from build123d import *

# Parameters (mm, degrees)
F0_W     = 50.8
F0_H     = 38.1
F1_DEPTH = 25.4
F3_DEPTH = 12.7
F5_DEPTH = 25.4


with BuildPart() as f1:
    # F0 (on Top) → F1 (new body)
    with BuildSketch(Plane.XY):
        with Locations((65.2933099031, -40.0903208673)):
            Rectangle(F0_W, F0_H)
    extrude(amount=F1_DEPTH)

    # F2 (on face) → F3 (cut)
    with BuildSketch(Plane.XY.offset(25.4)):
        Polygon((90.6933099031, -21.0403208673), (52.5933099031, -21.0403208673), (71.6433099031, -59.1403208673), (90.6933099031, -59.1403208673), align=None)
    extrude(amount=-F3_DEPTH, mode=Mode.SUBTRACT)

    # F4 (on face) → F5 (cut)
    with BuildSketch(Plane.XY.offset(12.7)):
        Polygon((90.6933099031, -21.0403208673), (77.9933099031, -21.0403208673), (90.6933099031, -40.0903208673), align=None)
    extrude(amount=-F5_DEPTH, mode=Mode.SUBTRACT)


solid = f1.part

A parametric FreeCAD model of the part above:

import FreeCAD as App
import Part
import Sketcher

V = App.Vector
Q = App.Units.Quantity

doc = App.newDocument("Part")
params = doc.addObject("Spreadsheet::Sheet", "Params")
for row, (alias, value) in enumerate([
    ("sketch1_width", "2 in"),
    ("sketch1_height", "1.5 in"),
    ("pad1_length", "1 in"),
    ("sketch2_width", "1.5 in"),
    ("sketch2_width2", "0.75 in"),
    ("pocket1_length", "0.5 in"),
    ("sketch3_width", "0.5 in"),
    ("sketch3_height", "0.75 in"),
    ("pocket2_length", "1 in"),
], start=1):
    params.set(f"A{row}", alias)
    params.set(f"B{row}", "=" + value)
    params.setAlias(f"B{row}", alias)

body = doc.addObject("PartDesign::Body", "Body")

sketch1 = body.newObject("Sketcher::SketchObject", "Sketch")
sketch1.AttachmentSupport = (doc.getObject("XY_Plane"), [""])
sketch1.MapMode = "FlatFace"
sketch1.addGeometry(Part.LineSegment(V(39.89331, -21.040321, 0), V(39.89331, -59.140321, 0)), False)
sketch1.addGeometry(Part.LineSegment(V(39.89331, -59.140321, 0), V(90.69331, -59.140321, 0)), False)
sketch1.addGeometry(Part.LineSegment(V(90.69331, -59.140321, 0), V(90.69331, -21.040321, 0)), False)
sketch1.addGeometry(Part.LineSegment(V(90.69331, -21.040321, 0), V(39.89331, -21.040321, 0)), False)
sketch1.addConstraint(Sketcher.Constraint("Coincident", 0, 2, 1, 1))
sketch1.addConstraint(Sketcher.Constraint("Coincident", 1, 2, 2, 1))
sketch1.addConstraint(Sketcher.Constraint("Coincident", 2, 2, 3, 1))
sketch1.addConstraint(Sketcher.Constraint("Coincident", 3, 2, 0, 1))
sketch1.addConstraint(Sketcher.Constraint("Vertical", 0))
sketch1.addConstraint(Sketcher.Constraint("Horizontal", 1))
sketch1.addConstraint(Sketcher.Constraint("Vertical", 2))
sketch1.addConstraint(Sketcher.Constraint("Horizontal", 3))
sketch1.addConstraint(Sketcher.Constraint("DistanceX", 1, 1, 1, 2, Q("2 in")))
sketch1.addConstraint(Sketcher.Constraint("DistanceY", 0, 2, 0, 1, Q("1.5 in")))
sketch1.addConstraint(Sketcher.Constraint("DistanceX", -1, 1, 0, 2, Q("39.89331 mm")))
sketch1.addConstraint(Sketcher.Constraint("DistanceY", 0, 2, -1, 1, Q("59.140321 mm")))
sketch1.setExpression("Constraints[8]", "Params.sketch1_width")
sketch1.setExpression("Constraints[9]", "Params.sketch1_height")
pad1 = body.newObject("PartDesign::Pad", "Pad")
pad1.Profile = sketch1
pad1.setExpression("Length", "Params.pad1_length")

sketch2 = body.newObject("Sketcher::SketchObject", "Sketch001")
sketch2.AttachmentSupport = (doc.getObject("XY_Plane"), [""])
sketch2.MapMode = "FlatFace"
sketch2.AttachmentOffset = App.Placement(V(0, 0, 1 * 25.4), App.Rotation())
sketch2.addGeometry(Part.LineSegment(V(90.69331, -21.040321, 0), V(52.59331, -21.040321, 0)), False)
sketch2.addGeometry(Part.LineSegment(V(52.59331, -21.040321, 0), V(71.64331, -59.140321, 0)), False)
sketch2.addGeometry(Part.LineSegment(V(71.64331, -59.140321, 0), V(90.69331, -59.140321, 0)), False)
sketch2.addGeometry(Part.LineSegment(V(90.69331, -59.140321, 0), V(90.69331, -21.040321, 0)), False)
sketch2.addConstraint(Sketcher.Constraint("Coincident", 0, 2, 1, 1))
sketch2.addConstraint(Sketcher.Constraint("Coincident", 1, 2, 2, 1))
sketch2.addConstraint(Sketcher.Constraint("Coincident", 2, 2, 3, 1))
sketch2.addConstraint(Sketcher.Constraint("Coincident", 3, 2, 0, 1))
sketch2.addConstraint(Sketcher.Constraint("Horizontal", 0))
sketch2.addConstraint(Sketcher.Constraint("Horizontal", 2))
sketch2.addConstraint(Sketcher.Constraint("Vertical", 3))
sketch2.addConstraint(Sketcher.Constraint("Equal", 0, 3))
sketch2.addConstraint(Sketcher.Constraint("DistanceX", 0, 2, 0, 1, Q("1.5 in")))
sketch2.addConstraint(Sketcher.Constraint("DistanceX", 2, 1, 2, 2, Q("0.75 in")))
sketch2.addConstraint(Sketcher.Constraint("DistanceX", -1, 1, 0, 2, Q("52.59331 mm")))
sketch2.addConstraint(Sketcher.Constraint("DistanceY", 0, 2, -1, 1, Q("21.040321 mm")))
sketch2.setExpression("Constraints[8]", "Params.sketch2_width")
sketch2.setExpression("Constraints[9]", "Params.sketch2_width2")
pocket1 = body.newObject("PartDesign::Pocket", "Pocket")
pocket1.Profile = sketch2
pocket1.setExpression("Length", "Params.pocket1_length")

sketch3 = body.newObject("Sketcher::SketchObject", "Sketch002")
sketch3.AttachmentSupport = (doc.getObject("XY_Plane"), [""])
sketch3.MapMode = "FlatFace"
sketch3.AttachmentOffset = App.Placement(V(0, 0, 0.5 * 25.4), App.Rotation())
sketch3.addGeometry(Part.LineSegment(V(90.69331, -21.040321, 0), V(77.99331, -21.040321, 0)), False)
sketch3.addGeometry(Part.LineSegment(V(77.99331, -21.040321, 0), V(90.69331, -40.090321, 0)), False)
sketch3.addGeometry(Part.LineSegment(V(90.69331, -40.090321, 0), V(90.69331, -21.040321, 0)), False)
sketch3.addConstraint(Sketcher.Constraint("Coincident", 0, 2, 1, 1))
sketch3.addConstraint(Sketcher.Constraint("Coincident", 1, 2, 2, 1))
sketch3.addConstraint(Sketcher.Constraint("Coincident", 2, 2, 0, 1))
sketch3.addConstraint(Sketcher.Constraint("Horizontal", 0))
sketch3.addConstraint(Sketcher.Constraint("Vertical", 2))
sketch3.addConstraint(Sketcher.Constraint("DistanceX", 0, 2, 0, 1, Q("0.5 in")))
sketch3.addConstraint(Sketcher.Constraint("DistanceY", 2, 1, 2, 2, Q("0.75 in")))
sketch3.addConstraint(Sketcher.Constraint("DistanceX", -1, 1, 0, 2, Q("77.99331 mm")))
sketch3.addConstraint(Sketcher.Constraint("DistanceY", 0, 2, -1, 1, Q("21.040321 mm")))
sketch3.setExpression("Constraints[5]", "Params.sketch3_width")
sketch3.setExpression("Constraints[6]", "Params.sketch3_height")
pocket2 = body.newObject("PartDesign::Pocket", "Pocket001")
pocket2.Profile = sketch3
pocket2.setExpression("Length", "Params.pocket2_length")

doc.recompute()
